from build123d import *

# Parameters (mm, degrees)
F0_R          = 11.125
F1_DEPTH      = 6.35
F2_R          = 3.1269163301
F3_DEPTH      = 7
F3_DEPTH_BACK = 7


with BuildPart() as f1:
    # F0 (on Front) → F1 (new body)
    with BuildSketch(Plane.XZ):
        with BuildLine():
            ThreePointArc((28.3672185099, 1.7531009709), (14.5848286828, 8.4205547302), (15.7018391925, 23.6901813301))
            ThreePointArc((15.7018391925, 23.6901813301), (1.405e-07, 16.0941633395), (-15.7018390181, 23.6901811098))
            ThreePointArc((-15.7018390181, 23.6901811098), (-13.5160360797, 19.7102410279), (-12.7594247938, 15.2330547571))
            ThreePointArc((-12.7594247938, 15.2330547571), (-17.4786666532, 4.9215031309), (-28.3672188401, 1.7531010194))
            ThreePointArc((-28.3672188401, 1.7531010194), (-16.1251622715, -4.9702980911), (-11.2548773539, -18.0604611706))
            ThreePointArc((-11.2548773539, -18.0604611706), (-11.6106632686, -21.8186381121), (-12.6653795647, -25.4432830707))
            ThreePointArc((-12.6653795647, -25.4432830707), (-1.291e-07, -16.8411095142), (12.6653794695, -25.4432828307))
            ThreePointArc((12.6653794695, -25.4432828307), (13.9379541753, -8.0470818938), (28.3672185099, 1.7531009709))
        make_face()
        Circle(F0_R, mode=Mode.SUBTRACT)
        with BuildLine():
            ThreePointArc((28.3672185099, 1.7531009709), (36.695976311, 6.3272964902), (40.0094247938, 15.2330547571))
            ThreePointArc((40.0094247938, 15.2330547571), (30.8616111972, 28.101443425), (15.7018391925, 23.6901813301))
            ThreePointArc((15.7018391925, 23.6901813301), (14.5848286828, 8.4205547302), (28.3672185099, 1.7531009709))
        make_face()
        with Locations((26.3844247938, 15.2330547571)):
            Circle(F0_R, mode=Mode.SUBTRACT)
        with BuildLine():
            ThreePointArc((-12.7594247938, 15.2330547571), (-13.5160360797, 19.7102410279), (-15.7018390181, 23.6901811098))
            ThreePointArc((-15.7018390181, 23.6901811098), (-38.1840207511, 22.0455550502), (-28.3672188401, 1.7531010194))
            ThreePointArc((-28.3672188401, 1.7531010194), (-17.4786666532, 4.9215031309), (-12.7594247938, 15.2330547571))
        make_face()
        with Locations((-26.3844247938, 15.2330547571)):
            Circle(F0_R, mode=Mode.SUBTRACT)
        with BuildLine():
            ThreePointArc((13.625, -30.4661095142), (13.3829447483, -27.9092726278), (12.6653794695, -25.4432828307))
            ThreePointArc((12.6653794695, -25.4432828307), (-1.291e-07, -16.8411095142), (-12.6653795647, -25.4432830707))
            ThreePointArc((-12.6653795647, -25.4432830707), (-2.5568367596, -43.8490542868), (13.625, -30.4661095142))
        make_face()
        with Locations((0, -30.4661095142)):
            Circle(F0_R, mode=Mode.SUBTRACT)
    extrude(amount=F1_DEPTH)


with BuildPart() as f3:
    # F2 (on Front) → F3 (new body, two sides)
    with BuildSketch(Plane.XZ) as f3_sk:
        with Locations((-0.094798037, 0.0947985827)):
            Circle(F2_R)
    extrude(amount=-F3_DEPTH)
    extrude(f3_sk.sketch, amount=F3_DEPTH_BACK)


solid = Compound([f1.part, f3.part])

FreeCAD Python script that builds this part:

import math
import FreeCAD as App
import Part
import Sketcher
from FreeCAD import Vector

doc = App.newDocument("Part")
body = doc.addObject("PartDesign::Body", "Body")

sketch1 = doc.addObject("Sketcher::SketchObject", "Sketch")
body.addObject(sketch1)
sketch1.AttachmentSupport = (doc.XZ_Plane, [""])
sketch1.MapMode = "FlatFace"
sketch1.addGeometry(Part.ArcOfCircle(Part.Circle(Vector(31, -18, 0), Vector(0, 0, 1), 20), math.radians(98), math.radians(202)), False)
sketch1.addGeometry(Part.ArcOfCircle(Part.Circle(Vector(26, 15, 0), Vector(0, 0, 1), 14), math.radians(-82), math.radians(142)), False)
sketch1.addGeometry(Part.ArcOfCircle(Part.Circle(Vector(0, 36, 0), Vector(0, 0, 1), 20), math.radians(-142), math.radians(-38)), False)
sketch1.addGeometry(Part.ArcOfCircle(Part.Circle(Vector(-26, 15, 0), Vector(0, 0, 1), 14), math.radians(38), math.radians(262)), False)
sketch1.addGeometry(Part.ArcOfCircle(Part.Circle(Vector(-31, -18, 0), Vector(0, 0, 1), 20), math.radians(0), math.radians(82)), False)
sketch1.addGeometry(Part.ArcOfCircle(Part.Circle(Vector(-31, -18, 0), Vector(0, 0, 1), 20), math.radians(-22), math.radians(0)), False)
sketch1.addGeometry(Part.ArcOfCircle(Part.Circle(Vector(0, -30, 0), Vector(0, 0, 1), 14), math.radians(158), math.radians(360)), False)
sketch1.addGeometry(Part.ArcOfCircle(Part.Circle(Vector(0, -30, 0), Vector(0, 0, 1), 14), math.radians(0), math.radians(22)), False)
sketch1.addGeometry(Part.Circle(Vector(0, -30, 0), Vector(0, 0, 1), 11), False)
sketch1.addGeometry(Part.Circle(Vector(-26, 15, 0), Vector(0, 0, 1), 11), False)
sketch1.addGeometry(Part.Circle(Vector(0, 0, 0), Vector(0, 0, 1), 11), False)
sketch1.addGeometry(Part.Circle(Vector(26, 15, 0), Vector(0, 0, 1), 11), False)
sketch1.addConstraint(Sketcher.Constraint("Tangent", 0, 1, 1, 1))
sketch1.addConstraint(Sketcher.Constraint("Tangent", 1, 2, 2, 2))
sketch1.addConstraint(Sketcher.Constraint("Tangent", 2, 1, 3, 1))
sketch1.addConstraint(Sketcher.Constraint("Tangent", 3, 2, 4, 2))
sketch1.addConstraint(Sketcher.Constraint("Tangent", 4, 1, 5, 2))
sketch1.addConstraint(Sketcher.Constraint("Tangent", 5, 1, 6, 1))
sketch1.addConstraint(Sketcher.Constraint("Tangent", 6, 2, 7, 1))
sketch1.addConstraint(Sketcher.Constraint("Tangent", 7, 2, 0, 2))
sketch1.addConstraint(Sketcher.Constraint("Coincident", 10, 3, -1, 1))
sketch1.addConstraint(Sketcher.Constraint("Coincident", 8, 3, 6, 3))
sketch1.addConstraint(Sketcher.Constraint("Coincident", 9, 3, 3, 3))
sketch1.addConstraint(Sketcher.Constraint("Coincident", 11, 3, 1, 3))
sketch1.addConstraint(Sketcher.Constraint("Equal", 0, 2))
sketch1.addConstraint(Sketcher.Constraint("Equal", 1, 3))
sketch1.addConstraint(Sketcher.Constraint("Equal", 2, 4))
sketch1.addConstraint(Sketcher.Constraint("Equal", 4, 5))
sketch1.addConstraint(Sketcher.Constraint("Equal", 3, 6))
sketch1.addConstraint(Sketcher.Constraint("Equal", 6, 7))
sketch1.addConstraint(Sketcher.Constraint("Equal", 8, 9))
sketch1.addConstraint(Sketcher.Constraint("Equal", 9, 10))
sketch1.addConstraint(Sketcher.Constraint("Equal", 10, 11))
sketch1.addConstraint(Sketcher.Constraint("Symmetric", 1, 3, 3, 3, -2))
sketch1.addConstraint(Sketcher.Constraint("PointOnObject", 6, 3, -2))
sketch1.addConstraint(Sketcher.Constraint("Horizontal", 5, 3, 4, 1))
sketch1.addConstraint(Sketcher.Constraint("Horizontal", 8, 3, 6, 2))
sketch1.addConstraint(Sketcher.Constraint("Diameter", 8, 22.25))
sketch1.addConstraint(Sketcher.Constraint("Radius", 1, 13.625))
sketch1.addConstraint(Sketcher.Constraint("Radius", 0, 20.026759))
sketch1.addConstraint(Sketcher.Constraint("DistanceY", -1, 1, 0, 1, 1.753101))
sketch1.addConstraint(Sketcher.Constraint("DistanceY", 0, 3, -1, 1, 18.060461))
sketch1.addConstraint(Sketcher.Constraint("DistanceY", 6, 3, -1, 1, 30.46611))
pad1 = doc.addObject("PartDesign::Pad", "Pad")
body.addObject(pad1)
pad1.Profile = sketch1
pad1.Length = 6.35
body2 = doc.addObject("PartDesign::Body", "Body001")

sketch2 = doc.addObject("Sketcher::SketchObject", "Sketch001")
body2.addObject(sketch2)
sketch2.AttachmentSupport = (doc.getObject("XZ_Plane001"), [""])
sketch2.MapMode = "FlatFace"
sketch2.addGeometry(Part.Circle(Vector(-0.1, 0.1, 0), Vector(0, 0, 1), 3.1), False)
sketch2.addConstraint(Sketcher.Constraint("Diameter", 0, 6.253833))
sketch2.addConstraint(Sketcher.Constraint("DistanceX", 0, 3, -1, 1, 0.094798))
sketch2.addConstraint(Sketcher.Constraint("DistanceY", -1, 1, 0, 3, 0.094799))
pad2 = doc.addObject("PartDesign::Pad", "Pad001")
body2.addObject(pad2)
pad2.Profile = sketch2
pad2.Type = "TwoLengths"
pad2.Length = 7
pad2.Length2 = 7
pad2.Reversed = True

doc.recompute()
